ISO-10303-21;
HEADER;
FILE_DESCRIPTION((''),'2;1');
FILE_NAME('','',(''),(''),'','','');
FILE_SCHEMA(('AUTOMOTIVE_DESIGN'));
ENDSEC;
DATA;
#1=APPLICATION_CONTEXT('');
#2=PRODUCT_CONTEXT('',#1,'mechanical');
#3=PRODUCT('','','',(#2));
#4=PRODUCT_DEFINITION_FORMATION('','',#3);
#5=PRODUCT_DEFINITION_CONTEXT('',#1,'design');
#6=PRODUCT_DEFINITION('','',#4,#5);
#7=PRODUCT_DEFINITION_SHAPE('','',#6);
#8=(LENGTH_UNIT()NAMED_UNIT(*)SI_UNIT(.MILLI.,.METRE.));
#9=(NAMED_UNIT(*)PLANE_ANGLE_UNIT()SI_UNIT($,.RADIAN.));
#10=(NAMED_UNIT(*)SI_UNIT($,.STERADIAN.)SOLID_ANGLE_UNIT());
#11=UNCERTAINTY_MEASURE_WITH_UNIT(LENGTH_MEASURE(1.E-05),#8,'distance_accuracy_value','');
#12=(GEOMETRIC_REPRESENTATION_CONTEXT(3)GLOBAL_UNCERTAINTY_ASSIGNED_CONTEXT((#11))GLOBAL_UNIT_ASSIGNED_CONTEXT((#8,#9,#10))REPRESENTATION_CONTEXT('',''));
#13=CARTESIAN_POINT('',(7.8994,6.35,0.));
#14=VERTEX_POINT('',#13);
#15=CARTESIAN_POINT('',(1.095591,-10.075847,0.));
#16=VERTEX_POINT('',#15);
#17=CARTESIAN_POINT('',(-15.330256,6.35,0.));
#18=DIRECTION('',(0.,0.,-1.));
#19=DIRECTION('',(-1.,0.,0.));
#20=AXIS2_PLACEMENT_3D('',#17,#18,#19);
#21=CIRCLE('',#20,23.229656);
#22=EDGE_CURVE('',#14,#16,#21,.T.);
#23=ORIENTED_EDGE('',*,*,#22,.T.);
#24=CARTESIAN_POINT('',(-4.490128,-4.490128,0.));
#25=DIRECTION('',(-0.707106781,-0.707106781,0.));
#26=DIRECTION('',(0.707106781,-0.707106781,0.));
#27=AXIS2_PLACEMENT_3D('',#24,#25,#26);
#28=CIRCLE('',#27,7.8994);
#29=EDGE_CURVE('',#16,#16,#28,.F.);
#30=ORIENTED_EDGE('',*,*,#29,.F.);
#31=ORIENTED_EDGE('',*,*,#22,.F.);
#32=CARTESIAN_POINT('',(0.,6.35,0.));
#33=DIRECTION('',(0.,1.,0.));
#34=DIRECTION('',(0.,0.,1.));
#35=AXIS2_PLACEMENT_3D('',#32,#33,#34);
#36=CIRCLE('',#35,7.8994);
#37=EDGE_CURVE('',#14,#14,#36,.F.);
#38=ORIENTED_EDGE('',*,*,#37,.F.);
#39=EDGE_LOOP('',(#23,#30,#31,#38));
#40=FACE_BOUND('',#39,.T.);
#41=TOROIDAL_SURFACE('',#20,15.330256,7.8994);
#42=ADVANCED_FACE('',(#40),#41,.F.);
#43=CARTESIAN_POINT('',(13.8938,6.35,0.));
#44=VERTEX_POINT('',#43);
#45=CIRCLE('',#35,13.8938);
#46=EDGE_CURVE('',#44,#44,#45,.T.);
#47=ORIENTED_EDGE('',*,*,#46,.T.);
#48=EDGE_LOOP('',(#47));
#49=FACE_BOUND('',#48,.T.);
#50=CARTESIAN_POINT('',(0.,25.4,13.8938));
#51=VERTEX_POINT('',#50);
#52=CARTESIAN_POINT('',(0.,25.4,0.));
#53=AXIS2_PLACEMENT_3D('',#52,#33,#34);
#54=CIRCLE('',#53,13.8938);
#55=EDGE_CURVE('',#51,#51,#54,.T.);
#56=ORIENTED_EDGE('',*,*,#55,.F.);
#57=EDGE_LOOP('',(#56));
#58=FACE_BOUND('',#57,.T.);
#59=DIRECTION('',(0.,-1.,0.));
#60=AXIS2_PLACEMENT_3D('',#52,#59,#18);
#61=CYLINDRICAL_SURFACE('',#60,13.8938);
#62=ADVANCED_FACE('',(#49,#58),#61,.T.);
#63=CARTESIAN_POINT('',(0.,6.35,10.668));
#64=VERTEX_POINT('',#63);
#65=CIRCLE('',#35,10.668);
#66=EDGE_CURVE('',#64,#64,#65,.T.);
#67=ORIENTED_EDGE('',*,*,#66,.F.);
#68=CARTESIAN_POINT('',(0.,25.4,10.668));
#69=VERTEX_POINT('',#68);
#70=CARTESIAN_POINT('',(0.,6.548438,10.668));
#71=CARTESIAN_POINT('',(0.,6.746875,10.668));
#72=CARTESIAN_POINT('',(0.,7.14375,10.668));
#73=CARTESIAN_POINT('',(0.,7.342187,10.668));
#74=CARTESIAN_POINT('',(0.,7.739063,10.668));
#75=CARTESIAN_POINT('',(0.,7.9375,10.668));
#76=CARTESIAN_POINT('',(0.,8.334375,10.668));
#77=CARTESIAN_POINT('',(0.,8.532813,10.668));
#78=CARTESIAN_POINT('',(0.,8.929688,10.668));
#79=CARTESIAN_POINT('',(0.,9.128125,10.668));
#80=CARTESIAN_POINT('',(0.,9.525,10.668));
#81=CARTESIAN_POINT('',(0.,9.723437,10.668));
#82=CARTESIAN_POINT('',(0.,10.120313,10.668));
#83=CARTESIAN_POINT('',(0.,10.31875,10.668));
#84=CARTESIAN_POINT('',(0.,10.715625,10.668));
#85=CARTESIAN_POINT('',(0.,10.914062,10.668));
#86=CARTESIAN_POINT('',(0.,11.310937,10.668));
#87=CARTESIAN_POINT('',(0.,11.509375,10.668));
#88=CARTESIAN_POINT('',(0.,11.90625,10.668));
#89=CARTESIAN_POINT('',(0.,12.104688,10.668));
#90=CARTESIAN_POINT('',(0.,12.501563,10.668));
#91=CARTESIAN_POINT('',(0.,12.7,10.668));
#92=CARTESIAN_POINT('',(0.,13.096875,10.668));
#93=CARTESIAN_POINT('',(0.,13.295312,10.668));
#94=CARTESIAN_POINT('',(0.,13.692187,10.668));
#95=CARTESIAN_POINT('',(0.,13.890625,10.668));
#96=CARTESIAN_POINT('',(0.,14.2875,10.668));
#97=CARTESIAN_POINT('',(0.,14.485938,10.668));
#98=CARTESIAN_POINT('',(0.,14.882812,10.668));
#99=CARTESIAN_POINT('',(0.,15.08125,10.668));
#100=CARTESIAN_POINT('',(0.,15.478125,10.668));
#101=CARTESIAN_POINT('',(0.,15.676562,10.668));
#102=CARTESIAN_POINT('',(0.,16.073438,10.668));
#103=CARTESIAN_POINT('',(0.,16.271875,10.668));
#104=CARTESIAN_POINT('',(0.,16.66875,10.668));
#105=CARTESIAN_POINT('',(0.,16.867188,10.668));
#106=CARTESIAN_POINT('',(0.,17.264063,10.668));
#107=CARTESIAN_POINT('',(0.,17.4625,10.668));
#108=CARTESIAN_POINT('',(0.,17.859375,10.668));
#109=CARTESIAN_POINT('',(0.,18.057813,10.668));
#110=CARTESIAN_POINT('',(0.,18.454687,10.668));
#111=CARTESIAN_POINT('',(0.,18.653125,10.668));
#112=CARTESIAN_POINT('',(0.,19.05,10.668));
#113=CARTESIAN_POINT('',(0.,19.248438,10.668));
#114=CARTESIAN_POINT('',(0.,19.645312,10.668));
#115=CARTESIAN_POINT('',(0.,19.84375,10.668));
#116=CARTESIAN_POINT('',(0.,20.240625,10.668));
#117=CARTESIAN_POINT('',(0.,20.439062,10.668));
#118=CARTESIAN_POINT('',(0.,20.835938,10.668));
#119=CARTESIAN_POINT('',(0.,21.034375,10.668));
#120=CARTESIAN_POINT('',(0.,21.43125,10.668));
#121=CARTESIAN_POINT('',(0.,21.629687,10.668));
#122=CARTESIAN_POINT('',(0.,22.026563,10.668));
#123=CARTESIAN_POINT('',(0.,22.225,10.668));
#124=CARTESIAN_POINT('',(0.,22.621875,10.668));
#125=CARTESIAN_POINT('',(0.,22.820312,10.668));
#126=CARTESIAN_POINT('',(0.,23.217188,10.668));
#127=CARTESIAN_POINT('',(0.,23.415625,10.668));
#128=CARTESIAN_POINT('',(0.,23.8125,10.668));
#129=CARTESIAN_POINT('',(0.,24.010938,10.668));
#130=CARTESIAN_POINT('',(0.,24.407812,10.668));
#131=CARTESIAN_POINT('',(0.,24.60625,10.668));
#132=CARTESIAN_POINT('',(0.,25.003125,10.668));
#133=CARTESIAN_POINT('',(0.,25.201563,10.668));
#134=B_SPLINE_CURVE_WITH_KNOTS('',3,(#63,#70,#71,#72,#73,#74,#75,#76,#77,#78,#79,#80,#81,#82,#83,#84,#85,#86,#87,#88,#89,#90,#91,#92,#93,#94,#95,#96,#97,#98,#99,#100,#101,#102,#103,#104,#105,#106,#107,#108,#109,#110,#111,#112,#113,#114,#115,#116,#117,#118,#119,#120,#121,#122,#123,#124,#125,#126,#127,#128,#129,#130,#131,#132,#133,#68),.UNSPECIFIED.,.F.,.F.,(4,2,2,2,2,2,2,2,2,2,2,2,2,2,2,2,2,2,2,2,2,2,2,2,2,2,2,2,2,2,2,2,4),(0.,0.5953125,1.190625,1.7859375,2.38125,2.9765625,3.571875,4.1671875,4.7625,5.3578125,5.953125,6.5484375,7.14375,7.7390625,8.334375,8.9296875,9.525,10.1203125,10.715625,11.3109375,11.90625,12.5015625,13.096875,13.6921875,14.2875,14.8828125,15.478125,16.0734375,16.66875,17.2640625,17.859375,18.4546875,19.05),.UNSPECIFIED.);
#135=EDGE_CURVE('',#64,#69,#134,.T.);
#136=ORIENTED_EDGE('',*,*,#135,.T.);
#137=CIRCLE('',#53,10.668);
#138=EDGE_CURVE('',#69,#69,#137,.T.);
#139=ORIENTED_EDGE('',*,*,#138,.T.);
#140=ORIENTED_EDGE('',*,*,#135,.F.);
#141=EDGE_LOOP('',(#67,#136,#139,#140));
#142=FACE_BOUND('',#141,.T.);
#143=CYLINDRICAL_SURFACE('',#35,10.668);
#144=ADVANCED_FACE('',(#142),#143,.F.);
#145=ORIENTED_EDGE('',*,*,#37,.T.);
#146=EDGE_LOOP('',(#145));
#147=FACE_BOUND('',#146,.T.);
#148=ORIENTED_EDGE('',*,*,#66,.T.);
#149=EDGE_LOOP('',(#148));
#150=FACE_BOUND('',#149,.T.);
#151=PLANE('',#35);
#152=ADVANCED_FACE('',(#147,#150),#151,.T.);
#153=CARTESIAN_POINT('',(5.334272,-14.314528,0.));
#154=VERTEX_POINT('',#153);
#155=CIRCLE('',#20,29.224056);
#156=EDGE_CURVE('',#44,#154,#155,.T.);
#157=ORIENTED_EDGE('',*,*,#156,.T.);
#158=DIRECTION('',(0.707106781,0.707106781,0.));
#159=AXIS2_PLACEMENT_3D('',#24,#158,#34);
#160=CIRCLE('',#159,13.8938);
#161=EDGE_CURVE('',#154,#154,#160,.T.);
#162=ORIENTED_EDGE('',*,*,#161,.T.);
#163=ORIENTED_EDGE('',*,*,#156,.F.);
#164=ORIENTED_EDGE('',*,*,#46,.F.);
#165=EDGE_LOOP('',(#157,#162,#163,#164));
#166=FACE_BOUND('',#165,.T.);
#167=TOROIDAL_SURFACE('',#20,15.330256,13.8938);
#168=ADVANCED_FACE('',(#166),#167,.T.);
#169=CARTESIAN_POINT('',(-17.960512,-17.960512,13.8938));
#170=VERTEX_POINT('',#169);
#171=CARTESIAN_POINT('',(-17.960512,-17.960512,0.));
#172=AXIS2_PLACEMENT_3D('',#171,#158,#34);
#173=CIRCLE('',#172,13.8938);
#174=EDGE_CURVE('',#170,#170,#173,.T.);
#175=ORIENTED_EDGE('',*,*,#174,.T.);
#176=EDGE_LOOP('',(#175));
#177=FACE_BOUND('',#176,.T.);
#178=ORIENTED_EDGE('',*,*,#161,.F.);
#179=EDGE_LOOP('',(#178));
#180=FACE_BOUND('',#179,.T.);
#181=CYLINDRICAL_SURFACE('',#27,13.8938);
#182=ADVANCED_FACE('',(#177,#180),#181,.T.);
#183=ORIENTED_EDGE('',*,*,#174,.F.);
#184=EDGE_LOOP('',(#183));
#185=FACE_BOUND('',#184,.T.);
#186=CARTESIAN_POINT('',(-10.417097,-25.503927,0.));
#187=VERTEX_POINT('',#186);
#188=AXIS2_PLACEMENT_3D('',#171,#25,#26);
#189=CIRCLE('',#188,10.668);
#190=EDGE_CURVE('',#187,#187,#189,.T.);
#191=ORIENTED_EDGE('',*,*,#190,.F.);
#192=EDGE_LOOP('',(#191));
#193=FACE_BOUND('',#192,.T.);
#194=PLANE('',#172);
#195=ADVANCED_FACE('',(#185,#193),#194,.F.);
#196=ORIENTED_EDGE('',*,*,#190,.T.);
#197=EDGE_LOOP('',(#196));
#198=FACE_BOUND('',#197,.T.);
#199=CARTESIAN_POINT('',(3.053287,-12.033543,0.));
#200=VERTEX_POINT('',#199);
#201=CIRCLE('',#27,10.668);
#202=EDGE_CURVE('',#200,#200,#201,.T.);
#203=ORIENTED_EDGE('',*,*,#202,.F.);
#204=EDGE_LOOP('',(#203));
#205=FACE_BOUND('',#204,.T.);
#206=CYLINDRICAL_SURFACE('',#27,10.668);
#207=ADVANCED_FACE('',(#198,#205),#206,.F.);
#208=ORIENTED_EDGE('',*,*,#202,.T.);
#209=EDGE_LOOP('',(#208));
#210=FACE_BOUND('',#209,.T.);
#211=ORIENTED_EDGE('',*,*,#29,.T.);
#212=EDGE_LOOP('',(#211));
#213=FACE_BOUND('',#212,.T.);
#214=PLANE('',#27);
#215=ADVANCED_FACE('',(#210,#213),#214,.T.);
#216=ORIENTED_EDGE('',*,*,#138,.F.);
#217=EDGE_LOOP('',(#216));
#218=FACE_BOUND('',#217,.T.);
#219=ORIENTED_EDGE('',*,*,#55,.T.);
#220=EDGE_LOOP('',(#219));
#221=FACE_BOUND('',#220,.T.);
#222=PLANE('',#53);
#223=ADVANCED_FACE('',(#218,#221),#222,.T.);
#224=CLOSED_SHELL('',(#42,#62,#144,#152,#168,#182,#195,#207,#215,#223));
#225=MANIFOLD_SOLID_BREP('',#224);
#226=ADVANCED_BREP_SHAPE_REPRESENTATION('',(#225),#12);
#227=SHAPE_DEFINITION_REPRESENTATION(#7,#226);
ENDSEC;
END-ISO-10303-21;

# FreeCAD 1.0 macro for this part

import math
import FreeCAD as App
import Part
import Sketcher
Q = App.Units.Quantity

doc = App.newDocument("Part")
body = doc.addObject("PartDesign::Body", "Body")

# Sketch on XZ plane
sketch1 = body.newObject("Sketcher::SketchObject", "Sketch")
sketch1.AttachmentSupport = (doc.getObject("XZ_Plane"), [""])
sketch1.MapMode = "FlatFace"
sketch1.AttachmentOffset = App.Placement(App.Vector(0, 0, -1 * 25.4), App.Rotation())
sketch1.addGeometry(Part.Circle(App.Vector(0, 0, 0), App.Vector(0, 0, 1), 14), False)
sketch1.addGeometry(Part.Circle(App.Vector(0, 0, 0), App.Vector(0, 0, 1), 8), False)
sketch1.addConstraint(Sketcher.Constraint("Coincident", 0, 3, -1, 1))
sketch1.addConstraint(Sketcher.Constraint("Coincident", 1, 3, -1, 1))
sketch1.addConstraint(Sketcher.Constraint("Diameter", 0, Q("1.094 in")))
sketch1.addConstraint(Sketcher.Constraint("Diameter", 1, Q("0.622 in")))

# Sketch on XY plane
sketch2 = body.newObject("Sketcher::SketchObject", "Sketch001")
sketch2.AttachmentSupport = (doc.getObject("XY_Plane"), [""])
sketch2.MapMode = "FlatFace"
sketch2.addGeometry(Part.LineSegment(App.Vector(-18, -18, 0), App.Vector(-4, -4, 0)), False)
sketch2.addGeometry(Part.ArcOfCircle(Part.Circle(App.Vector(-15, 6, 0), App.Vector(0, 0, 1), 15), math.radians(-45), math.radians(0)), False)
sketch2.addGeometry(Part.LineSegment(App.Vector(0, 6, 0), App.Vector(0, 25, 0)), False)
sketch2.addConstraint(Sketcher.Constraint("Tangent", 0, 2, 1, 1))
sketch2.addConstraint(Sketcher.Constraint("Tangent", 1, 2, 2, 1))
sketch2.addConstraint(Sketcher.Constraint("Vertical", 2))
sketch2.addConstraint(Sketcher.Constraint("PointOnObject", 1, 2, -2))
sketch2.addConstraint(Sketcher.Constraint("DistanceY", -1, 1, 2, 2, Q("1 in")))
sketch2.addConstraint(Sketcher.Constraint("Angle", 0, Q("45 deg")))
sketch2.addConstraint(Sketcher.Constraint("DistanceY", 2, 1, 2, 2, Q("0.75 in")))
sketch2.addConstraint(Sketcher.Constraint("Distance", 0, Q("0.75 in")))
sketch2.addConstraint(Sketcher.Constraint("Radius", 1, Q("15.330256 mm")))
doc.recompute()

additivepipe = body.newObject("PartDesign::AdditivePipe", "AdditivePipe")
additivepipe.Profile = sketch1
additivepipe.Spine = (sketch2, ["Edge1", "Edge2", "Edge3"])

# Sketch on XZ plane
sketch3 = body.newObject("Sketcher::SketchObject", "Sketch002")
sketch3.AttachmentSupport = (doc.getObject("XZ_Plane"), [""])
sketch3.MapMode = "FlatFace"
sketch3.AttachmentOffset = App.Placement(App.Vector(0, 0, -1 * 25.4), App.Rotation())
sketch3.addGeometry(Part.Circle(App.Vector(0, 0, 0), App.Vector(0, 0, 1), 11), False)
sketch3.addConstraint(Sketcher.Constraint("Coincident", 0, 3, -1, 1))
sketch3.addConstraint(Sketcher.Constraint("Diameter", 0, Q("0.84 in")))
pocket1 = body.newObject("PartDesign::Pocket", "Pocket")
pocket1.Profile = sketch3
pocket1.Length = Q("0.75 in")
pocket1.Reversed = True

# Sketch on an angled plane
sketch4 = body.newObject("Sketcher::SketchObject", "Sketch003")
sketch4.Placement = App.Placement(App.Vector(-17.960512, -17.960512, 0), App.Rotation(App.Vector(0, 0, 1), App.Vector(-0.707106781, 0.707106781, 0), App.Vector(-0.707106781, -0.707106781, 0), "ZXY"))
sketch4.addGeometry(Part.Circle(App.Vector(0, 0, 0), App.Vector(0, 0, 1), 11), False)
sketch4.addConstraint(Sketcher.Constraint("Coincident", 0, 3, -1, 1))
sketch4.addConstraint(Sketcher.Constraint("Diameter", 0, Q("0.84 in")))
pocket2 = body.newObject("PartDesign::Pocket", "Pocket001")
pocket2.Profile = sketch4
pocket2.Length = Q("0.75 in")

doc.recompute()
